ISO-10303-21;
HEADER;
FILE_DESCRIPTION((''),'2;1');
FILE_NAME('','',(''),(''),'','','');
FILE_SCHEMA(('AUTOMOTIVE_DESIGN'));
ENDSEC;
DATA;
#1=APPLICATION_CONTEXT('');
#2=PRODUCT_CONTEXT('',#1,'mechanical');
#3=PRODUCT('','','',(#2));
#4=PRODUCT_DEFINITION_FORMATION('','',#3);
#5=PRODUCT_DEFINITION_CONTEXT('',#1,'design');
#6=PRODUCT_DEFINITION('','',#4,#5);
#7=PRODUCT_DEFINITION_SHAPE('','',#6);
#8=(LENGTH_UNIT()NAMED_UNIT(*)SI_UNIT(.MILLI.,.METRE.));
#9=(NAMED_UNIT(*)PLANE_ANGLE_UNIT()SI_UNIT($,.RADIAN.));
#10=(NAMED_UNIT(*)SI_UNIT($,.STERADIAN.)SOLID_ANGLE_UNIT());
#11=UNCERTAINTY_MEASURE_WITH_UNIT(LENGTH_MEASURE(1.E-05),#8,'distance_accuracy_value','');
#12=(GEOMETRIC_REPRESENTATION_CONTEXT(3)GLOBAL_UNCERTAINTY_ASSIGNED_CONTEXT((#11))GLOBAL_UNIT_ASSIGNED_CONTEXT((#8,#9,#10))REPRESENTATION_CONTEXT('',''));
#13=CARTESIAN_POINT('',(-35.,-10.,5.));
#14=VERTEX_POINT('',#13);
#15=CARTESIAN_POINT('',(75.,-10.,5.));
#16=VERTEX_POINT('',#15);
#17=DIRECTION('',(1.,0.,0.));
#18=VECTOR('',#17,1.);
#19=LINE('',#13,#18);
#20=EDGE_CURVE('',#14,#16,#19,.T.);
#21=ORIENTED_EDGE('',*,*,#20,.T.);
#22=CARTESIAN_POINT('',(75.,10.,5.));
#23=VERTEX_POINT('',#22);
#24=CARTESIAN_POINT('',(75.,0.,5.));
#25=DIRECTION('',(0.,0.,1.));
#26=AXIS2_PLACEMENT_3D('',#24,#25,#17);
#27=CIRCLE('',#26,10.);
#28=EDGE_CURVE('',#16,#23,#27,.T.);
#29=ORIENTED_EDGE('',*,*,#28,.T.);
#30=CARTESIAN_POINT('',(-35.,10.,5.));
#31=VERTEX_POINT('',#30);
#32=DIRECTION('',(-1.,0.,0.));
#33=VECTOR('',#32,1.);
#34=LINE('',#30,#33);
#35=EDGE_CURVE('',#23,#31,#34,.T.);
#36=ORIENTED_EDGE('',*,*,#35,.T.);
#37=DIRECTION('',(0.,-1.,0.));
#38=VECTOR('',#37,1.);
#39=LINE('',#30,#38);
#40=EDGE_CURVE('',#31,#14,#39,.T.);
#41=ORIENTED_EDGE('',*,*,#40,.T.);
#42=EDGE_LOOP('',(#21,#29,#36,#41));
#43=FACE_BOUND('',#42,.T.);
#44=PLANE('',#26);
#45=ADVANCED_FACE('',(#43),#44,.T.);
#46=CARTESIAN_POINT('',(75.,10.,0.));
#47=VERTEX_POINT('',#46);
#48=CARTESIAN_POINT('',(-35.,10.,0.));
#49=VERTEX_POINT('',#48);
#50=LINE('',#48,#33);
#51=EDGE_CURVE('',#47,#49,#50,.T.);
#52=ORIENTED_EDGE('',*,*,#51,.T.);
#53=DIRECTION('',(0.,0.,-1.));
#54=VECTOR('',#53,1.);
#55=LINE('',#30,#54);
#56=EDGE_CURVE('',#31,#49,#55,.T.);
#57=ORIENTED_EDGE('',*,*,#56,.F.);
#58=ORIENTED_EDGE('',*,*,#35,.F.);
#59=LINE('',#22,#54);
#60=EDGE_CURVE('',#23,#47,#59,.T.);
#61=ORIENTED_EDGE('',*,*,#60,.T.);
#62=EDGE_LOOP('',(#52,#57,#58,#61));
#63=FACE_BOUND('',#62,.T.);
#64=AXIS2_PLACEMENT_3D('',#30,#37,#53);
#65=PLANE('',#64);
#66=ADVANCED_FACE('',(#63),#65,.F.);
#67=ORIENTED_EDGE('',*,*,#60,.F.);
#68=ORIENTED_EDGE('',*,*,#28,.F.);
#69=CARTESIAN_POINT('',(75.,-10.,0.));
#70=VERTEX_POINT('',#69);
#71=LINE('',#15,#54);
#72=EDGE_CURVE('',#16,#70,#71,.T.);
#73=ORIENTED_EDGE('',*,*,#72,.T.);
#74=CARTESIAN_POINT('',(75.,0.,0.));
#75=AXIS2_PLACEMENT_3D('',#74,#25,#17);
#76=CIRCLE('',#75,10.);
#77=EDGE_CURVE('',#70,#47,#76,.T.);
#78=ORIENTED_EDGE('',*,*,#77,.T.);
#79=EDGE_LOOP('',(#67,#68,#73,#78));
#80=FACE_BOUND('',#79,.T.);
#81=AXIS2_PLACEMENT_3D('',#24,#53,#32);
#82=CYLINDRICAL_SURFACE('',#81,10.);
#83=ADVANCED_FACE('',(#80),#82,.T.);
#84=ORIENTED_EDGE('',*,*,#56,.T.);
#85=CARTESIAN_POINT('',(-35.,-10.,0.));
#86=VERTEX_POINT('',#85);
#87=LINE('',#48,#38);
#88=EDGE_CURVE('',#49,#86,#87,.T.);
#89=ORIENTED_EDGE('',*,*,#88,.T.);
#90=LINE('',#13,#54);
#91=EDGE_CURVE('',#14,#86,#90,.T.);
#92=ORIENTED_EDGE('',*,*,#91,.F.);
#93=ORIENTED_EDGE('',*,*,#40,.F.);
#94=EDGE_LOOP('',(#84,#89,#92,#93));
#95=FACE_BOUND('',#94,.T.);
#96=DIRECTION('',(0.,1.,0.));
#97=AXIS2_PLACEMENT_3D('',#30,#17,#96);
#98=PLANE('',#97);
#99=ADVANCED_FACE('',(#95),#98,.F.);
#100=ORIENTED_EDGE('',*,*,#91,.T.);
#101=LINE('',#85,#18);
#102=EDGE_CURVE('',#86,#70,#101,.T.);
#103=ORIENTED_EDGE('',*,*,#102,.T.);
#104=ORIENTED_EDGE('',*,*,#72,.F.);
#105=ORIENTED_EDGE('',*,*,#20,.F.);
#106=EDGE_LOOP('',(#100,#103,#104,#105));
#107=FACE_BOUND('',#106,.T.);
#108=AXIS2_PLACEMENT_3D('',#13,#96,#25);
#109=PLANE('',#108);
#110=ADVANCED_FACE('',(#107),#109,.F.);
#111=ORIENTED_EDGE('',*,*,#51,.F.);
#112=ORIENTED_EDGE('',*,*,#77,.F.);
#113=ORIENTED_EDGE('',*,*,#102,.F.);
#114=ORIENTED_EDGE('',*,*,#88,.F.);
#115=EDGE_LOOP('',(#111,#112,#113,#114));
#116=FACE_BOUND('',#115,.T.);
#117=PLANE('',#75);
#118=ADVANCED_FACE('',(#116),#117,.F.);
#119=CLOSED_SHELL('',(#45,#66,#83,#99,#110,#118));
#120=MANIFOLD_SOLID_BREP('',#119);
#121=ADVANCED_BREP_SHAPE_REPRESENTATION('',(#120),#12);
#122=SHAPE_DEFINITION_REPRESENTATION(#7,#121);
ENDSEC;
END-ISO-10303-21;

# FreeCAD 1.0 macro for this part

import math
import FreeCAD as App
import Part
import Sketcher
Q = App.Units.Quantity

doc = App.newDocument("Part")
body = doc.addObject("PartDesign::Body", "Body")

# Sketch on XY plane
sketch1 = body.newObject("Sketcher::SketchObject", "Sketch")
sketch1.AttachmentSupport = (doc.getObject("XY_Plane"), [""])
sketch1.MapMode = "FlatFace"
sketch1.addGeometry(Part.LineSegment(App.Vector(75, 10, 0), App.Vector(-35, 10, 0)), False)
sketch1.addGeometry(Part.LineSegment(App.Vector(-35, 10, 0), App.Vector(-35, -10, 0)), False)
sketch1.addGeometry(Part.LineSegment(App.Vector(-35, -10, 0), App.Vector(75, -10, 0)), False)
sketch1.addGeometry(Part.ArcOfCircle(Part.Circle(App.Vector(75, 0, 0), App.Vector(0, 0, 1), 10), math.radians(-90), math.radians(90)), False)
sketch1.addConstraint(Sketcher.Constraint("Coincident", 0, 2, 1, 1))
sketch1.addConstraint(Sketcher.Constraint("Coincident", 1, 2, 2, 1))
sketch1.addConstraint(Sketcher.Constraint("Tangent", 2, 2, 3, 1))
sketch1.addConstraint(Sketcher.Constraint("Tangent", 3, 2, 0, 1))
sketch1.addConstraint(Sketcher.Constraint("Horizontal", 0))
sketch1.addConstraint(Sketcher.Constraint("Vertical", 1))
sketch1.addConstraint(Sketcher.Constraint("Horizontal", 2))
sketch1.addConstraint(Sketcher.Constraint("PointOnObject", 3, 3, -1))
sketch1.addConstraint(Sketcher.Constraint("Radius", 3, Q("10 mm")))
sketch1.addConstraint(Sketcher.Constraint("DistanceX", 0, 2, 0, 1, Q("110 mm")))
sketch1.addConstraint(Sketcher.Constraint("DistanceX", -1, 1, 3, 3, Q("75 mm")))
pad1 = body.newObject("PartDesign::Pad", "Pad")
pad1.Profile = sketch1
pad1.Length = 5

doc.recompute()
